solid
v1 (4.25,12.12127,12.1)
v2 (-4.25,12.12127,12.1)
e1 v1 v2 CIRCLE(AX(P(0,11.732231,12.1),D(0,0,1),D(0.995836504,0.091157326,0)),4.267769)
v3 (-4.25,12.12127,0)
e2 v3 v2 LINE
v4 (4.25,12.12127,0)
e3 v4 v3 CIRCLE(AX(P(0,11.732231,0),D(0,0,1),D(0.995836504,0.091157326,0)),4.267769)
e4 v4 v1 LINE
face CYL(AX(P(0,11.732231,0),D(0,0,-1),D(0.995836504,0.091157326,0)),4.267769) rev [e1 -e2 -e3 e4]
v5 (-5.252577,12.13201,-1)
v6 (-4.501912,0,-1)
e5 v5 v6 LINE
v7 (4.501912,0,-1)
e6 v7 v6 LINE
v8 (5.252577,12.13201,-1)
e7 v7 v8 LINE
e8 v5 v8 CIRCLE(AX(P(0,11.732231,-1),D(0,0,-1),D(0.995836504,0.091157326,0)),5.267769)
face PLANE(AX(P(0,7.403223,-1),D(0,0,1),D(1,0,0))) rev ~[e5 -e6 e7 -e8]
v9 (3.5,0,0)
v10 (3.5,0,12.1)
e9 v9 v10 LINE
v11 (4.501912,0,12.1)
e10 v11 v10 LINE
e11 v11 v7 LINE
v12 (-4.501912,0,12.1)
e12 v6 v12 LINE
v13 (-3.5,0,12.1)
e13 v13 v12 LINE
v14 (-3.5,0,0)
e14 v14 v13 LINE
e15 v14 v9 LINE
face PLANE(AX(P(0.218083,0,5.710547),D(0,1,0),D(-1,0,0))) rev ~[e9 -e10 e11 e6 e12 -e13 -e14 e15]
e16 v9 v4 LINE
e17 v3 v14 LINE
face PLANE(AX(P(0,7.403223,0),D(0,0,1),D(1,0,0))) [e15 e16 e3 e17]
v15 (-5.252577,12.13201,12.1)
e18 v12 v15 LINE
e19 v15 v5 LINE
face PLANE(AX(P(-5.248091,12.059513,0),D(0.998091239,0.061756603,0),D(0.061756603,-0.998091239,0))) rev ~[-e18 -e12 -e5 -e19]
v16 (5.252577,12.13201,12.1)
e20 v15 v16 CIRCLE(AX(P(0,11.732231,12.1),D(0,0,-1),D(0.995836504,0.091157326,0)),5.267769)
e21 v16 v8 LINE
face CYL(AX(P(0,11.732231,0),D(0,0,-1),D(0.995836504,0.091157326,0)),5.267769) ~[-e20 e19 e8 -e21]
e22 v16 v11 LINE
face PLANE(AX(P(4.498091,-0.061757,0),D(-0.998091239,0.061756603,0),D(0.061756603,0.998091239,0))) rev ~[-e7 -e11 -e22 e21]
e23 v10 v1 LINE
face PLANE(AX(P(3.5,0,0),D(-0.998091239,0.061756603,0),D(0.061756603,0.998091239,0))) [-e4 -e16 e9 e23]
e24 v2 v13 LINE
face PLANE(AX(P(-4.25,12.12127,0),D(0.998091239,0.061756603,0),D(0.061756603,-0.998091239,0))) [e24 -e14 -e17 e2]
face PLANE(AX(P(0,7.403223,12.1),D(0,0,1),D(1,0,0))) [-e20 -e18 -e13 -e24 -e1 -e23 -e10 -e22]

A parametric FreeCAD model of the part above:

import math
import FreeCAD as App
import Part
import Sketcher

V = App.Vector
Q = App.Units.Quantity


def faces_at(feature, points):
    """Names of the faces that lie closest to the given points."""
    faces = feature.Shape.Faces
    near = lambda p: min(range(len(faces)), key=lambda i: faces[i].distToShape(Part.Vertex(*p))[0])
    return sorted({f"Face{near(p) + 1}" for p in points})

doc = App.newDocument("Part")
params = doc.addObject("Spreadsheet::Sheet", "Params")
for row, (alias, value) in enumerate([
    ("sketch1_width", "7 mm"),
    ("pad1_length", "12.1 mm"),
    ("thickness_wall", "1 mm"),
    ("pocket1_length", "25 mm"),
], start=1):
    params.set(f"A{row}", alias)
    params.set(f"B{row}", "=" + value)
    params.setAlias(f"B{row}", alias)

body = doc.addObject("PartDesign::Body", "Body")

sketch1 = doc.addObject("Sketcher::SketchObject", "Sketch")
body.addObject(sketch1)
sketch1.AttachmentSupport = (doc.XY_Plane, [""])
sketch1.MapMode = "FlatFace"
sketch1.addGeometry([
    Part.LineSegment(V(-4.25, 12.12127, 0), V(-3.5, 0, 0)),
    Part.LineSegment(V(-3.5, 0, 0), V(3.5, 0, 0)),
    Part.LineSegment(V(3.5, 0, 0), V(4.25, 12.12127, 0)),
    Part.ArcOfCircle(Part.Circle(V(0, 11.732231, 0), V(0, 0, 1), 4.267769), math.radians(5.230191), math.radians(174.769809)),
], False)
sketch1.addConstraint([
    Sketcher.Constraint("Coincident", 0, 2, 1, 1),
    Sketcher.Constraint("Coincident", 1, 2, 2, 1),
    Sketcher.Constraint("Coincident", 2, 2, 3, 1),
    Sketcher.Constraint("Coincident", 3, 2, 0, 1),
    Sketcher.Constraint("Horizontal", 1),
    Sketcher.Constraint("Symmetric", 0, 2, 1, 2, -1, 1),
    Sketcher.Constraint("Symmetric", 2, 2, 3, 2, -2),
    Sketcher.Constraint("DistanceX", 1, 1, 1, 2, Q("7 mm")),
    Sketcher.Constraint("DistanceX", 3, 2, 2, 2, Q("8.5 mm")),
    Sketcher.Constraint("Radius", 3, Q("4.267769 mm")),
    Sketcher.Constraint("Distance", 0, Q("12.14445 mm")),
])
sketch1.setExpression("Constraints[7]", "Params.sketch1_width")
pad1 = doc.addObject("PartDesign::Pad", "Pad")
body.addObject(pad1)
pad1.Profile = sketch1
pad1.setExpression("Length", "Params.pad1_length")
doc.recompute()

thickness = doc.addObject("PartDesign::Thickness", "Thickness")
body.addObject(thickness)
thickness.Base = (pad1, faces_at(pad1, [(0, 8, 12.1)]))
thickness.setExpression("Value", "Params.thickness_wall")
thickness.Reversed = False
thickness.Join = "Intersection"

sketch2 = doc.addObject("Sketcher::SketchObject", "Sketch001")
body.addObject(sketch2)
sketch2.AttachmentSupport = (doc.XZ_Plane, [""])
sketch2.MapMode = "FlatFace"
sketch2.addGeometry([
    Part.LineSegment(V(7.199895, 12.713743, 0), V(7.199895, -1.292649, 0)),
    Part.LineSegment(V(7.199895, -1.292649, 0), V(-6.763729, -1.292649, 0)),
    Part.LineSegment(V(-6.763729, -1.292649, 0), V(-6.763729, 12.713743, 0)),
    Part.LineSegment(V(-6.763729, 12.713743, 0), V(7.199895, 12.713743, 0)),
], False)
sketch2.addConstraint([
    Sketcher.Constraint("Coincident", 0, 2, 1, 1),
    Sketcher.Constraint("Coincident", 1, 2, 2, 1),
    Sketcher.Constraint("Coincident", 2, 2, 3, 1),
    Sketcher.Constraint("Coincident", 3, 2, 0, 1),
    Sketcher.Constraint("Vertical", 0),
    Sketcher.Constraint("Horizontal", 1),
    Sketcher.Constraint("Vertical", 2),
    Sketcher.Constraint("Horizontal", 3),
    Sketcher.Constraint("DistanceX", 1, 2, 1, 1, Q("13.963624 mm")),
    Sketcher.Constraint("DistanceY", 0, 2, 0, 1, Q("14.006392 mm")),
    Sketcher.Constraint("DistanceY", 0, 2, -1, 1, Q("1.292649 mm")),
    Sketcher.Constraint("DistanceX", 1, 2, -1, 1, Q("6.763729 mm")),
])
pocket1 = doc.addObject("PartDesign::Pocket", "Pocket")
body.addObject(pocket1)
pocket1.Profile = sketch2
pocket1.setExpression("Length", "Params.pocket1_length")
pocket1.Reversed = True

doc.recompute()
